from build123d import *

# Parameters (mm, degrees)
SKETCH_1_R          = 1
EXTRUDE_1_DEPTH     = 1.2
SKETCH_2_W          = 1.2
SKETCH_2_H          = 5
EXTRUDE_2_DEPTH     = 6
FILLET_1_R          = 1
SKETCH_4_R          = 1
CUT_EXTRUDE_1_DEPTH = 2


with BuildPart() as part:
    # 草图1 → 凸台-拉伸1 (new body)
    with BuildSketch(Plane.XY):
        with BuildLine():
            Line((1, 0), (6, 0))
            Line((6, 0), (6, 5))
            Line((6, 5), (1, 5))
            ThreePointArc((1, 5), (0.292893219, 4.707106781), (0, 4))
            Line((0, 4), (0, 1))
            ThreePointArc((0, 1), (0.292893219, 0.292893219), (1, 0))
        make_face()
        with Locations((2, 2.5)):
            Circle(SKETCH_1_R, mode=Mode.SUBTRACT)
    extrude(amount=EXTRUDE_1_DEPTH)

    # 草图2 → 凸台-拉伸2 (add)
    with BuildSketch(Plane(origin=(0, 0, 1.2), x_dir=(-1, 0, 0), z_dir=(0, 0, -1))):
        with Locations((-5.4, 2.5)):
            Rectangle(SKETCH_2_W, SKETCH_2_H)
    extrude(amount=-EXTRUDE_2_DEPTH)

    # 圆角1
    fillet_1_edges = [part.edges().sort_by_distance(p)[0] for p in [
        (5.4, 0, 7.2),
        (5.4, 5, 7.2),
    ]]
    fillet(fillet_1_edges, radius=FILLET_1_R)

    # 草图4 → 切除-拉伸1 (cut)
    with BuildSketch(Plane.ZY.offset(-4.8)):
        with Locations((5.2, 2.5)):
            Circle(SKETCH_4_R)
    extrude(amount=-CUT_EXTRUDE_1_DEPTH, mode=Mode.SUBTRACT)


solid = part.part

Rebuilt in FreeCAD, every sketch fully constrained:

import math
import FreeCAD as App
import Part
import Sketcher

V = App.Vector


def edges_at(feature, points):
    """Names of the edges that pass closest to the given points."""
    edges = feature.Shape.Edges
    near = lambda p: min(range(len(edges)), key=lambda i: edges[i].distToShape(Part.Vertex(*p))[0])
    return sorted({f"Edge{near(p) + 1}" for p in points})

doc = App.newDocument("Part")
body = doc.addObject("PartDesign::Body", "Body")

# Sketch on XY plane
sketch1 = body.newObject("Sketcher::SketchObject", "Sketch")
sketch1.AttachmentSupport = (doc.getObject("XY_Plane"), [""])
sketch1.MapMode = "FlatFace"
sketch1.addGeometry([
    Part.LineSegment(V(1, 0, 0), V(6, 0, 0)),  # 0
    Part.LineSegment(V(6, 0, 0), V(6, 5, 0)),  # 1
    Part.LineSegment(V(6, 5, 0), V(1, 5, 0)),  # 2
    Part.ArcOfCircle(Part.Circle(V(1, 4, 0), V(0, 0, 1), 1), math.radians(90), math.radians(180)),  # 3
    Part.LineSegment(V(0, 4, 0), V(0, 1, 0)),  # 4
    Part.ArcOfCircle(Part.Circle(V(1, 1, 0), V(0, 0, 1), 1), math.radians(-180), math.radians(-90)),  # 5
    Part.Circle(V(2, 2.5, 0), V(0, 0, 1), 1),  # 6
], False)
sketch1.addConstraint([
    Sketcher.Constraint("Coincident", 0, 2, 1, 1),
    Sketcher.Constraint("Coincident", 1, 2, 2, 1),
    Sketcher.Constraint("Tangent", 2, 2, 3, 1),
    Sketcher.Constraint("Tangent", 3, 2, 4, 1),
    Sketcher.Constraint("Tangent", 4, 2, 5, 1),
    Sketcher.Constraint("Tangent", 5, 2, 0, 1),
    Sketcher.Constraint("Horizontal", 0),
    Sketcher.Constraint("Vertical", 1),
    Sketcher.Constraint("Horizontal", 2),
    Sketcher.Constraint("Vertical", 4),
    Sketcher.Constraint("Equal", 3, 5),
    Sketcher.Constraint("Equal", 5, 6),
    Sketcher.Constraint("PointOnObject", 0, 2, -1),
    Sketcher.Constraint("PointOnObject", 3, 2, -2),
    Sketcher.Constraint("Equal", 2, 1),
    Sketcher.Constraint("Diameter", 6, 2.0),
    Sketcher.Constraint("DistanceX", 0, 1, 0, 2, 5.0),
    Sketcher.Constraint("DistanceX", -1, 1, 6, 3, 2.0),
    Sketcher.Constraint("DistanceY", -1, 1, 6, 3, 2.5),
])
pad1 = body.newObject("PartDesign::Pad", "Pad")
pad1.Profile = sketch1
pad1.Length = 1.2

# Sketch on XY plane
sketch2 = body.newObject("Sketcher::SketchObject", "Sketch001")
sketch2.AttachmentSupport = (doc.getObject("XY_Plane"), [""])
sketch2.MapMode = "FlatFace"
sketch2.AttachmentOffset = App.Placement(V(0, 0, 1.2), App.Rotation())
sketch2.addGeometry([
    Part.LineSegment(V(6, 5, 0), V(6, 0, 0)),
    Part.LineSegment(V(6, 0, 0), V(4.8, 0, 0)),
    Part.LineSegment(V(4.8, 0, 0), V(4.8, 5, 0)),
    Part.LineSegment(V(4.8, 5, 0), V(6, 5, 0)),
], False)
sketch2.addConstraint([
    Sketcher.Constraint("Coincident", 0, 2, 1, 1),
    Sketcher.Constraint("Coincident", 1, 2, 2, 1),
    Sketcher.Constraint("Coincident", 2, 2, 3, 1),
    Sketcher.Constraint("Coincident", 3, 2, 0, 1),
    Sketcher.Constraint("Vertical", 0),
    Sketcher.Constraint("Horizontal", 1),
    Sketcher.Constraint("Vertical", 2),
    Sketcher.Constraint("Horizontal", 3),
    Sketcher.Constraint("PointOnObject", 0, 2, -1),
    Sketcher.Constraint("DistanceY", 0, 2, 0, 1, 5.0),
    Sketcher.Constraint("DistanceX", 1, 2, 1, 1, 1.2),
    Sketcher.Constraint("DistanceX", -1, 1, 0, 2, 6.0),
])
pad2 = body.newObject("PartDesign::Pad", "Pad001")
pad2.Profile = sketch2
pad2.Length = 6
doc.recompute()

fillet = body.newObject("PartDesign::Fillet", "Fillet")
fillet.Base = (pad2, edges_at(pad2, [(5.4, 0, 7.2), (5.4, 5, 7.2)]))
fillet.Radius = 1

# Sketch on YZ plane
sketch3 = body.newObject("Sketcher::SketchObject", "Sketch002")
sketch3.AttachmentSupport = (doc.getObject("YZ_Plane"), [""])
sketch3.MapMode = "FlatFace"
sketch3.AttachmentOffset = App.Placement(V(0, 0, 4.8), App.Rotation())
sketch3.addGeometry(Part.Circle(V(2.5, 5.2, 0), V(0, 0, 1), 1), False)
sketch3.addConstraint([
    Sketcher.Constraint("Diameter", 0, 2.0),
    Sketcher.Constraint("DistanceX", -1, 1, 0, 3, 2.5),
    Sketcher.Constraint("DistanceY", -1, 1, 0, 3, 5.2),
])
pocket1 = body.newObject("PartDesign::Pocket", "Pocket")
pocket1.Profile = sketch3
pocket1.Length = 2
pocket1.Reversed = True

doc.recompute()
